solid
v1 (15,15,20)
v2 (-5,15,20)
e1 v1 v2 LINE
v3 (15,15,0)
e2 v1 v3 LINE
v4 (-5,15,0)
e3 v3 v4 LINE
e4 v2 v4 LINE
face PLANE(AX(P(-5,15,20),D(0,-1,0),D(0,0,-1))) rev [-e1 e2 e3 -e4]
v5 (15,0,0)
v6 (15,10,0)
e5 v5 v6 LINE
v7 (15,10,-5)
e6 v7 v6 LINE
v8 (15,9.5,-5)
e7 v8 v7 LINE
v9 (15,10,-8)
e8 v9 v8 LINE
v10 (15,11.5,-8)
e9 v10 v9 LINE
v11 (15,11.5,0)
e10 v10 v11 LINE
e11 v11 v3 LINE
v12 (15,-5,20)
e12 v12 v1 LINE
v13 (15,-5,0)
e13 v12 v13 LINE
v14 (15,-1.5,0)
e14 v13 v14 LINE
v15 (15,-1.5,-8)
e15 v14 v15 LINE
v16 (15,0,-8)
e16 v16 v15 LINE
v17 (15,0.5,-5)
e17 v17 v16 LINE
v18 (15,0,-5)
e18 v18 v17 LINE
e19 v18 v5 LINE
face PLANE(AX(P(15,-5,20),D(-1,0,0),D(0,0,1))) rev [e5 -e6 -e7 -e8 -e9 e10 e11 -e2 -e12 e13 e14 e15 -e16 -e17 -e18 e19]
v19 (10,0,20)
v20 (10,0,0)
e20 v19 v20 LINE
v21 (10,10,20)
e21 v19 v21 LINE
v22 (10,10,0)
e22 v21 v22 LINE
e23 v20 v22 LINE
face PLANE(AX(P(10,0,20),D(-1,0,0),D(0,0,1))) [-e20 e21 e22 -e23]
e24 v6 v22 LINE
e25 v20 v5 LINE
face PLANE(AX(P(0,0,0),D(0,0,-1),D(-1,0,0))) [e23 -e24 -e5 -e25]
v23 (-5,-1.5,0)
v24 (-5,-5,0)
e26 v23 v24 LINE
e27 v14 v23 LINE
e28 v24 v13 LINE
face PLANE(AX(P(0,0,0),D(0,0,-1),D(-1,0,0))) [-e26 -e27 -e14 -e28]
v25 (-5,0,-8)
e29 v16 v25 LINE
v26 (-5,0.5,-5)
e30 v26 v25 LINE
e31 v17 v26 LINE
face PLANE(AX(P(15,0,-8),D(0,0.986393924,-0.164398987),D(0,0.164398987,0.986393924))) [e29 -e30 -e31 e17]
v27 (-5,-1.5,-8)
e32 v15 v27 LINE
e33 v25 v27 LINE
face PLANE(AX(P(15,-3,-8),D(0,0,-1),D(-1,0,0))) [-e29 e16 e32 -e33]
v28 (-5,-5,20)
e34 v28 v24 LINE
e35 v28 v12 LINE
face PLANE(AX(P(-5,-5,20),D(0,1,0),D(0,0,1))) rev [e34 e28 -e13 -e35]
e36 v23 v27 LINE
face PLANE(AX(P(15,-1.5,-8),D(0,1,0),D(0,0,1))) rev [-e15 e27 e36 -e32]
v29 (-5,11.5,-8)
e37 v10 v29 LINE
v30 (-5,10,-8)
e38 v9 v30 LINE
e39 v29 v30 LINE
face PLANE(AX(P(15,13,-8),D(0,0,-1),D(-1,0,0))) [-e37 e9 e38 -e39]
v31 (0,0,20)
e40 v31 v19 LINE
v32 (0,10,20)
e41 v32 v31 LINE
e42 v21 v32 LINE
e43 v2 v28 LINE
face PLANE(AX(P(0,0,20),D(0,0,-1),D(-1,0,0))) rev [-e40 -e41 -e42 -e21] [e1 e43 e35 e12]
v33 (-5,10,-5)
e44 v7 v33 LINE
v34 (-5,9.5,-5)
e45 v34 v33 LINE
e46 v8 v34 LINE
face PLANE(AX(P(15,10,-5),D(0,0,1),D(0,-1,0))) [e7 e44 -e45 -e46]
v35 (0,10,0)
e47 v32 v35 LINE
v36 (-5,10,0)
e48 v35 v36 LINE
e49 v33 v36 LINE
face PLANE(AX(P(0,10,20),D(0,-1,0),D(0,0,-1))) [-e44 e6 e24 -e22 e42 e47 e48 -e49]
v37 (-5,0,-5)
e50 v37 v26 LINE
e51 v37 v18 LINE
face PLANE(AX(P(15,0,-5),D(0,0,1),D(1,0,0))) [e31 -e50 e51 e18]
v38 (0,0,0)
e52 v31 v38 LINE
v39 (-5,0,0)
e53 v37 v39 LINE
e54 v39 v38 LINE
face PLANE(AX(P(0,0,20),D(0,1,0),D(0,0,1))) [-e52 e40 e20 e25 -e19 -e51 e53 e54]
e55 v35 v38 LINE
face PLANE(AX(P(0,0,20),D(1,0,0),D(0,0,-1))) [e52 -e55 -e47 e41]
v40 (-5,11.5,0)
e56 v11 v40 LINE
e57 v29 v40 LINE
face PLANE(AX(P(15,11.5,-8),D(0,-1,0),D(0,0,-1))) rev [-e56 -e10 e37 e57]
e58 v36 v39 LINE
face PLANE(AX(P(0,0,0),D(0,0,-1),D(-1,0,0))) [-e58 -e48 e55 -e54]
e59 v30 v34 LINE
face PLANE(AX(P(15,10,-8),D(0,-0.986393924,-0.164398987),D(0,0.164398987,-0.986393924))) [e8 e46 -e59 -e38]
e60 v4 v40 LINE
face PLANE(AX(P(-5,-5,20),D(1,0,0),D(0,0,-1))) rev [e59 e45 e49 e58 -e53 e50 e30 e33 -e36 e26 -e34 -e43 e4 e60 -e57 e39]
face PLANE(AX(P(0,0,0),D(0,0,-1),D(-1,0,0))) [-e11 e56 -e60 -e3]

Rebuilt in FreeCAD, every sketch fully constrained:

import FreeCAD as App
import Part
import Sketcher

V = App.Vector

doc = App.newDocument("Part")
body = doc.addObject("PartDesign::Body", "Body")

sketch1 = body.newObject("Sketcher::SketchObject", "Sketch")
sketch1.AttachmentSupport = (doc.getObject("XY_Plane"), [""])
sketch1.MapMode = "FlatFace"
sketch1.addGeometry(Part.LineSegment(V(-5, 15, 0), V(-5, -5, 0)), False)
sketch1.addGeometry(Part.LineSegment(V(-5, -5, 0), V(15, -5, 0)), False)
sketch1.addGeometry(Part.LineSegment(V(15, -5, 0), V(15, 15, 0)), False)
sketch1.addGeometry(Part.LineSegment(V(15, 15, 0), V(-5, 15, 0)), False)
sketch1.addGeometry(Part.LineSegment(V(10, 0, 0), V(0, 0, 0)), False)
sketch1.addGeometry(Part.LineSegment(V(0, 0, 0), V(0, 10, 0)), False)
sketch1.addGeometry(Part.LineSegment(V(0, 10, 0), V(10, 10, 0)), False)
sketch1.addGeometry(Part.LineSegment(V(10, 10, 0), V(10, 0, 0)), False)
sketch1.addConstraint(Sketcher.Constraint("Coincident", 0, 2, 1, 1))
sketch1.addConstraint(Sketcher.Constraint("Coincident", 1, 2, 2, 1))
sketch1.addConstraint(Sketcher.Constraint("Coincident", 2, 2, 3, 1))
sketch1.addConstraint(Sketcher.Constraint("Coincident", 3, 2, 0, 1))
sketch1.addConstraint(Sketcher.Constraint("Coincident", 4, 2, 5, 1))
sketch1.addConstraint(Sketcher.Constraint("Coincident", 5, 2, 6, 1))
sketch1.addConstraint(Sketcher.Constraint("Coincident", 6, 2, 7, 1))
sketch1.addConstraint(Sketcher.Constraint("Coincident", 7, 2, 4, 1))
sketch1.addConstraint(Sketcher.Constraint("Vertical", 0))
sketch1.addConstraint(Sketcher.Constraint("Horizontal", 1))
sketch1.addConstraint(Sketcher.Constraint("Vertical", 2))
sketch1.addConstraint(Sketcher.Constraint("Horizontal", 3))
sketch1.addConstraint(Sketcher.Constraint("Horizontal", 4))
sketch1.addConstraint(Sketcher.Constraint("Vertical", 5))
sketch1.addConstraint(Sketcher.Constraint("Horizontal", 6))
sketch1.addConstraint(Sketcher.Constraint("Vertical", 7))
sketch1.addConstraint(Sketcher.Constraint("Coincident", 4, 2, -1, 1))
sketch1.addConstraint(Sketcher.Constraint("Equal", 3, 0))
sketch1.addConstraint(Sketcher.Constraint("Equal", 6, 5))
sketch1.addConstraint(Sketcher.Constraint("DistanceX", 1, 1, 1, 2, 20.0))
sketch1.addConstraint(Sketcher.Constraint("DistanceX", 4, 2, 4, 1, 10.0))
sketch1.addConstraint(Sketcher.Constraint("DistanceX", 0, 2, -1, 1, 5.0))
sketch1.addConstraint(Sketcher.Constraint("DistanceY", 0, 2, -1, 1, 5.0))
pad1 = body.newObject("PartDesign::Pad", "Pad")
pad1.Profile = sketch1
pad1.Length = 20

sketch2 = body.newObject("Sketcher::SketchObject", "Sketch001")
sketch2.AttachmentSupport = (doc.getObject("XY_Plane"), [""])
sketch2.MapMode = "FlatFace"
sketch2.addGeometry(Part.LineSegment(V(15, 13, 0), V(15, 10, 0)), False)
sketch2.addGeometry(Part.LineSegment(V(15, 10, 0), V(-5, 10, 0)), False)
sketch2.addGeometry(Part.LineSegment(V(-5, 10, 0), V(-5, 13, 0)), False)
sketch2.addGeometry(Part.LineSegment(V(-5, 13, 0), V(15, 13, 0)), False)
sketch2.addGeometry(Part.LineSegment(V(15, 0, 0), V(15, -3, 0)), False)
sketch2.addGeometry(Part.LineSegment(V(15, -3, 0), V(-5, -3, 0)), False)
sketch2.addGeometry(Part.LineSegment(V(-5, -3, 0), V(-5, 0, 0)), False)
sketch2.addGeometry(Part.LineSegment(V(-5, 0, 0), V(15, 0, 0)), False)
sketch2.addConstraint(Sketcher.Constraint("Coincident", 0, 2, 1, 1))
sketch2.addConstraint(Sketcher.Constraint("Coincident", 1, 2, 2, 1))
sketch2.addConstraint(Sketcher.Constraint("Coincident", 2, 2, 3, 1))
sketch2.addConstraint(Sketcher.Constraint("Coincident", 3, 2, 0, 1))
sketch2.addConstraint(Sketcher.Constraint("Coincident", 4, 2, 5, 1))
sketch2.addConstraint(Sketcher.Constraint("Coincident", 5, 2, 6, 1))
sketch2.addConstraint(Sketcher.Constraint("Coincident", 6, 2, 7, 1))
sketch2.addConstraint(Sketcher.Constraint("Coincident", 7, 2, 4, 1))
sketch2.addConstraint(Sketcher.Constraint("Vertical", 0))
sketch2.addConstraint(Sketcher.Constraint("Horizontal", 1))
sketch2.addConstraint(Sketcher.Constraint("Vertical", 2))
sketch2.addConstraint(Sketcher.Constraint("Horizontal", 3))
sketch2.addConstraint(Sketcher.Constraint("Vertical", 4))
sketch2.addConstraint(Sketcher.Constraint("Horizontal", 5))
sketch2.addConstraint(Sketcher.Constraint("Vertical", 6))
sketch2.addConstraint(Sketcher.Constraint("Horizontal", 7))
sketch2.addConstraint(Sketcher.Constraint("PointOnObject", 6, 2, -1))
sketch2.addConstraint(Sketcher.Constraint("Vertical", 3, 2, 4, 2))
sketch2.addConstraint(Sketcher.Constraint("Vertical", 2, 2, 5, 2))
sketch2.addConstraint(Sketcher.Constraint("Equal", 2, 4))
sketch2.addConstraint(Sketcher.Constraint("DistanceX", 1, 2, 1, 1, 20.0))
sketch2.addConstraint(Sketcher.Constraint("DistanceY", 0, 2, 0, 1, 3.0))
sketch2.addConstraint(Sketcher.Constraint("DistanceX", -1, 1, 0, 2, 15.0))
sketch2.addConstraint(Sketcher.Constraint("DistanceY", -1, 1, 0, 2, 10.0))
pad2 = body.newObject("PartDesign::Pad", "Pad001")
pad2.Profile = sketch2
pad2.Length = 5
pad2.Reversed = True

sketch3 = body.newObject("Sketcher::SketchObject", "Sketch002")
sketch3.AttachmentSupport = (doc.getObject("YZ_Plane"), [""])
sketch3.MapMode = "FlatFace"
sketch3.AttachmentOffset = App.Placement(V(0, 0, -5), App.Rotation())
sketch3.addGeometry(Part.LineSegment(V(9.5, -5, 0), V(13, -5, 0)), False)
sketch3.addGeometry(Part.LineSegment(V(13, -5, 0), V(13, -8, 0)), False)
sketch3.addGeometry(Part.LineSegment(V(13, -8, 0), V(10, -8, 0)), False)
sketch3.addGeometry(Part.LineSegment(V(10, -8, 0), V(9.5, -5, 0)), False)
sketch3.addGeometry(Part.LineSegment(V(0.5, -5, 0), V(0, -8, 0)), False)
sketch3.addGeometry(Part.LineSegment(V(0, -8, 0), V(-3, -8, 0)), False)
sketch3.addGeometry(Part.LineSegment(V(-3, -8, 0), V(-3, -5, 0)), False)
sketch3.addGeometry(Part.LineSegment(V(-3, -5, 0), V(0.5, -5, 0)), False)
sketch3.addConstraint(Sketcher.Constraint("Coincident", 0, 2, 1, 1))
sketch3.addConstraint(Sketcher.Constraint("Coincident", 1, 2, 2, 1))
sketch3.addConstraint(Sketcher.Constraint("Coincident", 2, 2, 3, 1))
sketch3.addConstraint(Sketcher.Constraint("Coincident", 3, 2, 0, 1))
sketch3.addConstraint(Sketcher.Constraint("Coincident", 4, 2, 5, 1))
sketch3.addConstraint(Sketcher.Constraint("Coincident", 5, 2, 6, 1))
sketch3.addConstraint(Sketcher.Constraint("Coincident", 6, 2, 7, 1))
sketch3.addConstraint(Sketcher.Constraint("Coincident", 7, 2, 4, 1))
sketch3.addConstraint(Sketcher.Constraint("Horizontal", 0))
sketch3.addConstraint(Sketcher.Constraint("Vertical", 1))
sketch3.addConstraint(Sketcher.Constraint("Horizontal", 2))
sketch3.addConstraint(Sketcher.Constraint("Horizontal", 5))
sketch3.addConstraint(Sketcher.Constraint("Vertical", 6))
sketch3.addConstraint(Sketcher.Constraint("Horizontal", 7))
sketch3.addConstraint(Sketcher.Constraint("PointOnObject", 4, 2, -2))
sketch3.addConstraint(Sketcher.Constraint("Horizontal", 2, 2, 4, 2))
sketch3.addConstraint(Sketcher.Constraint("Horizontal", 3, 2, 6, 2))
sketch3.addConstraint(Sketcher.Constraint("Equal", 2, 5))
sketch3.addConstraint(Sketcher.Constraint("Equal", 0, 7))
sketch3.addConstraint(Sketcher.Constraint("Equal", 5, 1))
sketch3.addConstraint(Sketcher.Constraint("DistanceX", 2, 2, 2, 1, 3.0))
sketch3.addConstraint(Sketcher.Constraint("DistanceX", 0, 1, 0, 2, 3.5))
sketch3.addConstraint(Sketcher.Constraint("DistanceX", -1, 1, 0, 2, 13.0))
sketch3.addConstraint(Sketcher.Constraint("DistanceY", 0, 2, -1, 1, 5.0))
pad3 = body.newObject("PartDesign::Pad", "Pad002")
pad3.Profile = sketch3
pad3.Length = 20

sketch4 = body.newObject("Sketcher::SketchObject", "Sketch003")
sketch4.AttachmentSupport = (doc.getObject("YZ_Plane"), [""])
sketch4.MapMode = "FlatFace"
sketch4.AttachmentOffset = App.Placement(V(0, 0, -5), App.Rotation())
sketch4.addGeometry(Part.LineSegment(V(13, -8, 0), V(11.5, -8, 0)), False)
sketch4.addGeometry(Part.LineSegment(V(11.5, -8, 0), V(11.5, 0, 0)), False)
sketch4.addGeometry(Part.LineSegment(V(11.5, 0, 0), V(13, 0, 0)), False)
sketch4.addGeometry(Part.LineSegment(V(13, 0, 0), V(13, -8, 0)), False)
sketch4.addGeometry(Part.LineSegment(V(-1.5, -8, 0), V(-3, -8, 0)), False)
sketch4.addGeometry(Part.LineSegment(V(-3, -8, 0), V(-3, 0, 0)), False)
sketch4.addGeometry(Part.LineSegment(V(-3, 0, 0), V(-1.5, 0, 0)), False)
sketch4.addGeometry(Part.LineSegment(V(-1.5, 0, 0), V(-1.5, -8, 0)), False)
sketch4.addConstraint(Sketcher.Constraint("Coincident", 0, 2, 1, 1))
sketch4.addConstraint(Sketcher.Constraint("Coincident", 1, 2, 2, 1))
sketch4.addConstraint(Sketcher.Constraint("Coincident", 2, 2, 3, 1))
sketch4.addConstraint(Sketcher.Constraint("Coincident", 3, 2, 0, 1))
sketch4.addConstraint(Sketcher.Constraint("Coincident", 4, 2, 5, 1))
sketch4.addConstraint(Sketcher.Constraint("Coincident", 5, 2, 6, 1))
sketch4.addConstraint(Sketcher.Constraint("Coincident", 6, 2, 7, 1))
sketch4.addConstraint(Sketcher.Constraint("Coincident", 7, 2, 4, 1))
sketch4.addConstraint(Sketcher.Constraint("Horizontal", 0))
sketch4.addConstraint(Sketcher.Constraint("Vertical", 1))
sketch4.addConstraint(Sketcher.Constraint("Horizontal", 2))
sketch4.addConstraint(Sketcher.Constraint("Vertical", 3))
sketch4.addConstraint(Sketcher.Constraint("Horizontal", 4))
sketch4.addConstraint(Sketcher.Constraint("Vertical", 5))
sketch4.addConstraint(Sketcher.Constraint("Horizontal", 6))
sketch4.addConstraint(Sketcher.Constraint("Vertical", 7))
sketch4.addConstraint(Sketcher.Constraint("PointOnObject", 1, 2, -1))
sketch4.addConstraint(Sketcher.Constraint("PointOnObject", 5, 2, -1))
sketch4.addConstraint(Sketcher.Constraint("Horizontal", 3, 2, 4, 2))
sketch4.addConstraint(Sketcher.Constraint("Equal", 2, 4))
sketch4.addConstraint(Sketcher.Constraint("DistanceY", 1, 1, 1, 2, 8.0))
sketch4.addConstraint(Sketcher.Constraint("DistanceX", 0, 2, 0, 1, 1.5))
sketch4.addConstraint(Sketcher.Constraint("DistanceX", -1, 1, 2, 2, 13.0))
sketch4.addConstraint(Sketcher.Constraint("DistanceX", 4, 2, -1, 1, 3.0))
pocket1 = body.newObject("PartDesign::Pocket", "Pocket")
pocket1.Profile = sketch4
pocket1.Length = 20
pocket1.Reversed = True

doc.recompute()
